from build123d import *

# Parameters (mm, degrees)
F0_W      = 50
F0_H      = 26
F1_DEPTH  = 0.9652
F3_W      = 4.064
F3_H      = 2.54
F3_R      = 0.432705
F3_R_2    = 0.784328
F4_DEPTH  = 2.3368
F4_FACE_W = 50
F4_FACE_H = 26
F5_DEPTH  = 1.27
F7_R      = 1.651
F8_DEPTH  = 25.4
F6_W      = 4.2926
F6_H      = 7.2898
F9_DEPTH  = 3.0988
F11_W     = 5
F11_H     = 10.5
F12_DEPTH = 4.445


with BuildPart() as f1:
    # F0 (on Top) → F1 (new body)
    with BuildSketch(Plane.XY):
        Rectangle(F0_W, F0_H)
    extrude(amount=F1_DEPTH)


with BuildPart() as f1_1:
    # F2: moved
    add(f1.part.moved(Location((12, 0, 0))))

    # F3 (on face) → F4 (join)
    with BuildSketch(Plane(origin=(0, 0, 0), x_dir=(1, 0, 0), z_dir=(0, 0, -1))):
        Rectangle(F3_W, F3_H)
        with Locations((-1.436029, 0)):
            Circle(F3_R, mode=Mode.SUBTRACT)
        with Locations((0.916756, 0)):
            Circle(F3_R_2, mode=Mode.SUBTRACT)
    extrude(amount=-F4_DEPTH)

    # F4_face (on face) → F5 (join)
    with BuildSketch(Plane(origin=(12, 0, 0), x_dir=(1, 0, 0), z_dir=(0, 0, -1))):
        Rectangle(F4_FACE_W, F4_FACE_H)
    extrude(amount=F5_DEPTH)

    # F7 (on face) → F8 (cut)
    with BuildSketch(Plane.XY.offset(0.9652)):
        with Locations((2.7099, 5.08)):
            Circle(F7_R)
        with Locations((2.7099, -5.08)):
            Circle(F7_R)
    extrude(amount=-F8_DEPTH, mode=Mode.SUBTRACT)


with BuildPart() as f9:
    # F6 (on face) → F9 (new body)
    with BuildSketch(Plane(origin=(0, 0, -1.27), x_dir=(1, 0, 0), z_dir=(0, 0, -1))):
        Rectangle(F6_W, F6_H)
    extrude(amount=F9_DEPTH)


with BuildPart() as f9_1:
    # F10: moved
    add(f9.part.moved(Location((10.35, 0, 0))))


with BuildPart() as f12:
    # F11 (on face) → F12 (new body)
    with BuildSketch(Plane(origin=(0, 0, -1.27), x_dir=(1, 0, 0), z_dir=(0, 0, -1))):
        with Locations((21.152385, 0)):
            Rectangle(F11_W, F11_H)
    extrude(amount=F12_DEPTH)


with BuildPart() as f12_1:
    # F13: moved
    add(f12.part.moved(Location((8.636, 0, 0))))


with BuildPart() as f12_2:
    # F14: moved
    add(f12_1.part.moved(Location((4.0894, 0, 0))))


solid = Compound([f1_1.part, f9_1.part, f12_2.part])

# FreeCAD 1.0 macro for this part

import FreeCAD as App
import Part
import Sketcher

V = App.Vector
Q = App.Units.Quantity

doc = App.newDocument("Part")
body = doc.addObject("PartDesign::Body", "Body")

sketch1 = body.newObject("Sketcher::SketchObject", "Sketch")
sketch1.AttachmentSupport = (doc.getObject("XY_Plane"), [""])
sketch1.MapMode = "FlatFace"
sketch1.addGeometry([
    Part.LineSegment(V(-25, 13, 0), V(-25, -13, 0)),
    Part.LineSegment(V(-25, -13, 0), V(25, -13, 0)),
    Part.LineSegment(V(25, -13, 0), V(25, 13, 0)),
    Part.LineSegment(V(25, 13, 0), V(-25, 13, 0)),
], False)
sketch1.addConstraint([
    Sketcher.Constraint("Coincident", 0, 2, 1, 1),
    Sketcher.Constraint("Coincident", 1, 2, 2, 1),
    Sketcher.Constraint("Coincident", 2, 2, 3, 1),
    Sketcher.Constraint("Coincident", 3, 2, 0, 1),
    Sketcher.Constraint("Vertical", 0),
    Sketcher.Constraint("Horizontal", 1),
    Sketcher.Constraint("Vertical", 2),
    Sketcher.Constraint("Horizontal", 3),
    Sketcher.Constraint("Symmetric", 0, 2, 2, 2, -1, 1),
    Sketcher.Constraint("DistanceX", 1, 1, 1, 2, 50.0),
    Sketcher.Constraint("DistanceY", 0, 2, 0, 1, 26.0),
])
pad1 = body.newObject("PartDesign::Pad", "Pad")
pad1.Profile = sketch1
pad1.Length = Q("0.038 in")
body2 = doc.addObject("PartDesign::Body", "Body001")
doc.recompute()

body.Placement = App.Placement(V(12, 0, 0), App.Rotation(V(0, 0, 1), 0))
boolean = body2.newObject("PartDesign::Boolean", "Boolean")
boolean.Type = "Fuse"
boolean.addObjects([body])

sketch2 = body2.newObject("Sketcher::SketchObject", "Sketch001")
sketch2.AttachmentSupport = (doc.getObject("XY_Plane001"), [""])
sketch2.MapMode = "FlatFace"
sketch2.addGeometry([
    Part.LineSegment(V(-2.03, -1.27, 0), V(-2.03, 1.27, 0)),
    Part.LineSegment(V(-2.03, 1.27, 0), V(2.03, 1.27, 0)),
    Part.LineSegment(V(2.03, 1.27, 0), V(2.03, -1.27, 0)),
    Part.LineSegment(V(2.03, -1.27, 0), V(-2.03, -1.27, 0)),
    Part.Circle(V(-1.44, 0, 0), V(0, 0, 1), 0.43),
    Part.Circle(V(0.92, 0, 0), V(0, 0, 1), 0.78),
], False)
sketch2.addConstraint([
    Sketcher.Constraint("Coincident", 0, 2, 1, 1),
    Sketcher.Constraint("Coincident", 1, 2, 2, 1),
    Sketcher.Constraint("Coincident", 2, 2, 3, 1),
    Sketcher.Constraint("Coincident", 3, 2, 0, 1),
    Sketcher.Constraint("Vertical", 0),
    Sketcher.Constraint("Horizontal", 1),
    Sketcher.Constraint("Vertical", 2),
    Sketcher.Constraint("Horizontal", 3),
    Sketcher.Constraint("Symmetric", 0, 2, 2, 2, -1, 1),
    Sketcher.Constraint("PointOnObject", 4, 3, -1),
    Sketcher.Constraint("PointOnObject", 5, 3, -1),
    Sketcher.Constraint("DistanceY", 0, 1, 0, 2, Q("0.1 in")),
    Sketcher.Constraint("DistanceX", 1, 1, 1, 2, Q("0.16 in")),
    Sketcher.Constraint("Diameter", 4, 0.86541),
    Sketcher.Constraint("Diameter", 5, 1.568656),
    Sketcher.Constraint("DistanceX", 4, 3, -1, 1, 1.436029),
    Sketcher.Constraint("DistanceX", -1, 1, 5, 3, 0.916756),
])
pad2 = body2.newObject("PartDesign::Pad", "Pad001")
pad2.Profile = sketch2
pad2.Length = Q("0.092 in")

sketch3 = body2.newObject("Sketcher::SketchObject", "Sketch002")
sketch3.AttachmentSupport = (doc.getObject("XY_Plane001"), [""])
sketch3.MapMode = "FlatFace"
sketch3.addGeometry([
    Part.LineSegment(V(-13, -13, 0), V(-13, 13, 0)),
    Part.LineSegment(V(-13, 13, 0), V(37, 13, 0)),
    Part.LineSegment(V(37, 13, 0), V(37, -13, 0)),
    Part.LineSegment(V(37, -13, 0), V(-13, -13, 0)),
], False)
sketch3.addConstraint([
    Sketcher.Constraint("Coincident", 0, 2, 1, 1),
    Sketcher.Constraint("Coincident", 1, 2, 2, 1),
    Sketcher.Constraint("Coincident", 2, 2, 3, 1),
    Sketcher.Constraint("Coincident", 3, 2, 0, 1),
    Sketcher.Constraint("Vertical", 0),
    Sketcher.Constraint("Horizontal", 1),
    Sketcher.Constraint("Vertical", 2),
    Sketcher.Constraint("Horizontal", 3),
    Sketcher.Constraint("DistanceX", 1, 1, 1, 2, 50.0),
    Sketcher.Constraint("DistanceY", 0, 1, 0, 2, 26.0),
    Sketcher.Constraint("DistanceX", 0, 2, -1, 1, 13.0),
    Sketcher.Constraint("DistanceY", -1, 1, 0, 2, 13.0),
])
pad3 = body2.newObject("PartDesign::Pad", "Pad002")
pad3.Profile = sketch3
pad3.Length = Q("0.05 in")
pad3.Reversed = True

sketch4 = body2.newObject("Sketcher::SketchObject", "Sketch003")
sketch4.AttachmentSupport = (doc.getObject("XY_Plane001"), [""])
sketch4.MapMode = "FlatFace"
sketch4.AttachmentOffset = App.Placement(V(0, 0, 0.038 * 25.4), App.Rotation())
sketch4.addGeometry([
    Part.Circle(V(2.7, 5.1, 0), V(0, 0, 1), 1.7),
    Part.Circle(V(2.7, -5.1, 0), V(0, 0, 1), 1.7),
], False)
sketch4.addConstraint([
    Sketcher.Constraint("Equal", 0, 1),
    Sketcher.Constraint("Symmetric", 0, 3, 1, 3, -1),
    Sketcher.Constraint("Diameter", 0, Q("0.13 in")),
    Sketcher.Constraint("DistanceY", -1, 1, 0, 3, Q("0.2 in")),
    Sketcher.Constraint("DistanceX", -1, 1, 0, 3, 2.7099),
])
pocket1 = body2.newObject("PartDesign::Pocket", "Pocket")
pocket1.Profile = sketch4
pocket1.Length = Q("1 in")
body3 = doc.addObject("PartDesign::Body", "Body002")

sketch5 = body3.newObject("Sketcher::SketchObject", "Sketch004")
sketch5.AttachmentSupport = (doc.getObject("XY_Plane002"), [""])
sketch5.MapMode = "FlatFace"
sketch5.AttachmentOffset = App.Placement(V(0, 0, -0.05 * 25.4), App.Rotation())
sketch5.addGeometry([
    Part.LineSegment(V(-2.1, -3.6, 0), V(-2.1, 3.6, 0)),
    Part.LineSegment(V(-2.1, 3.6, 0), V(2.1, 3.6, 0)),
    Part.LineSegment(V(2.1, 3.6, 0), V(2.1, -3.6, 0)),
    Part.LineSegment(V(2.1, -3.6, 0), V(-2.1, -3.6, 0)),
], False)
sketch5.addConstraint([
    Sketcher.Constraint("Coincident", 0, 2, 1, 1),
    Sketcher.Constraint("Coincident", 1, 2, 2, 1),
    Sketcher.Constraint("Coincident", 2, 2, 3, 1),
    Sketcher.Constraint("Coincident", 3, 2, 0, 1),
    Sketcher.Constraint("Vertical", 0),
    Sketcher.Constraint("Horizontal", 1),
    Sketcher.Constraint("Vertical", 2),
    Sketcher.Constraint("Horizontal", 3),
    Sketcher.Constraint("Symmetric", 0, 2, 2, 2, -1, 1),
    Sketcher.Constraint("DistanceX", 1, 1, 1, 2, Q("0.169 in")),
    Sketcher.Constraint("DistanceY", 0, 1, 0, 2, Q("0.287 in")),
])
pad4 = body3.newObject("PartDesign::Pad", "Pad003")
pad4.Profile = sketch5
pad4.Length = Q("0.122 in")
pad4.Reversed = True
body4 = doc.addObject("PartDesign::Body", "Body003")
doc.recompute()

body3.Placement = App.Placement(V(10.35, 0, 0), App.Rotation(V(0, 0, 1), 0))
boolean2 = body4.newObject("PartDesign::Boolean", "Boolean001")
boolean2.Type = "Fuse"
boolean2.addObjects([body3])
body5 = doc.addObject("PartDesign::Body", "Body004")

sketch6 = body5.newObject("Sketcher::SketchObject", "Sketch005")
sketch6.AttachmentSupport = (doc.getObject("XY_Plane004"), [""])
sketch6.MapMode = "FlatFace"
sketch6.AttachmentOffset = App.Placement(V(0, 0, -0.05 * 25.4), App.Rotation())
sketch6.addGeometry([
    Part.LineSegment(V(19, -5, 0), V(19, 5, 0)),
    Part.LineSegment(V(19, 5, 0), V(24, 5, 0)),
    Part.LineSegment(V(24, 5, 0), V(24, -5, 0)),
    Part.LineSegment(V(24, -5, 0), V(19, -5, 0)),
], False)
sketch6.addConstraint([
    Sketcher.Constraint("Coincident", 0, 2, 1, 1),
    Sketcher.Constraint("Coincident", 1, 2, 2, 1),
    Sketcher.Constraint("Coincident", 2, 2, 3, 1),
    Sketcher.Constraint("Coincident", 3, 2, 0, 1),
    Sketcher.Constraint("Vertical", 0),
    Sketcher.Constraint("Horizontal", 1),
    Sketcher.Constraint("Vertical", 2),
    Sketcher.Constraint("Horizontal", 3),
    Sketcher.Constraint("DistanceX", 1, 1, 1, 2, 5.0),
    Sketcher.Constraint("DistanceY", 0, 1, 0, 2, 10.5),
    Sketcher.Constraint("DistanceY", -1, 1, 0, 2, 5.25),
    Sketcher.Constraint("DistanceX", -1, 1, 0, 2, 18.652385),
])
pad5 = body5.newObject("PartDesign::Pad", "Pad004")
pad5.Profile = sketch6
pad5.Length = Q("0.175 in")
pad5.Reversed = True
body6 = doc.addObject("PartDesign::Body", "Body005")
doc.recompute()

body5.Placement = App.Placement(V(8.636, 0, 0), App.Rotation(V(0, 0, 1), 0))
boolean3 = body6.newObject("PartDesign::Boolean", "Boolean002")
boolean3.Type = "Fuse"
boolean3.addObjects([body5])
body7 = doc.addObject("PartDesign::Body", "Body006")
doc.recompute()

body6.Placement = App.Placement(V(4.0894, 0, 0), App.Rotation(V(0, 0, 1), 0))
boolean4 = body7.newObject("PartDesign::Boolean", "Boolean003")
boolean4.Type = "Fuse"
boolean4.addObjects([body6])

doc.recompute()
